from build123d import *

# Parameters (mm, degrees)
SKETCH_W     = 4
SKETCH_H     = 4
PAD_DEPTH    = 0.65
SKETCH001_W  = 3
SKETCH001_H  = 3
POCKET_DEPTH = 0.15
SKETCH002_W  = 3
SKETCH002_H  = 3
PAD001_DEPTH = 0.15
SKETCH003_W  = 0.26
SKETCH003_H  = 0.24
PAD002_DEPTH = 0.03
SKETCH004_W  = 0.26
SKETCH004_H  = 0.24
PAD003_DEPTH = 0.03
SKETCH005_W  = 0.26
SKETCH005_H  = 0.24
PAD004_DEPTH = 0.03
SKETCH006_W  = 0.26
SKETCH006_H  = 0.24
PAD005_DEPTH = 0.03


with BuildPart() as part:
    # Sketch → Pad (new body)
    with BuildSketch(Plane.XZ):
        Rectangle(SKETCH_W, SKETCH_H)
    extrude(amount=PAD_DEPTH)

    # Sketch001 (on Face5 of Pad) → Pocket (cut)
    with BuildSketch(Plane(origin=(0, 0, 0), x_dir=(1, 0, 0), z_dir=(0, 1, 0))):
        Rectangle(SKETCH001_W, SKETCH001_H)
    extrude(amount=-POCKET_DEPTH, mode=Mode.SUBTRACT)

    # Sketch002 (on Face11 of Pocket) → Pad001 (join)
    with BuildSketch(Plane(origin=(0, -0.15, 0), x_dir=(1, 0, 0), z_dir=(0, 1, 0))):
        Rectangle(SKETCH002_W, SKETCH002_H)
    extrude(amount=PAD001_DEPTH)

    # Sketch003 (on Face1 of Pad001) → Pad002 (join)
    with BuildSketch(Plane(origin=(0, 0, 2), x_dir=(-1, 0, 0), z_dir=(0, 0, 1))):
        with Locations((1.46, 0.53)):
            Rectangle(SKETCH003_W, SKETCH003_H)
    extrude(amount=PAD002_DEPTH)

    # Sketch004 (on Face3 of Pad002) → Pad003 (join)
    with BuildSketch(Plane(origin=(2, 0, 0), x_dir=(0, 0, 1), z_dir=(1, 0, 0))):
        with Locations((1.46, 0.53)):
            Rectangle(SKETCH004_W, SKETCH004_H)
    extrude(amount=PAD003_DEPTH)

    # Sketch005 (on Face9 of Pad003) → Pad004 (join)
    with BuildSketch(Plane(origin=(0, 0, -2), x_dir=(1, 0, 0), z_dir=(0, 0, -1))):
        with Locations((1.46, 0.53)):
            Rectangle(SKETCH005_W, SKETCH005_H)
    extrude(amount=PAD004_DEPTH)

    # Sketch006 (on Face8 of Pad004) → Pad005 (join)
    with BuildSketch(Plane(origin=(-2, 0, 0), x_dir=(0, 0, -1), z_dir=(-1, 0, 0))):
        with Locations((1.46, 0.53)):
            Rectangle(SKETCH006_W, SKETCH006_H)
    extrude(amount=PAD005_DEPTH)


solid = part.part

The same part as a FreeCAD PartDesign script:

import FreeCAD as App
import Part
import Sketcher

doc = App.newDocument("Part")
body = doc.addObject("PartDesign::Body", "Body")

sketch1 = doc.addObject("Sketcher::SketchObject", "Sketch")
body.addObject(sketch1)
sketch1.AttachmentSupport = (doc.XZ_Plane, [""])
sketch1.MapMode = "FlatFace"
sketch1.addGeometry([
    Part.LineSegment(App.Vector(-2, 2, 0), App.Vector(-2, -2, 0)),
    Part.LineSegment(App.Vector(-2, -2, 0), App.Vector(2, -2, 0)),
    Part.LineSegment(App.Vector(2, -2, 0), App.Vector(2, 2, 0)),
    Part.LineSegment(App.Vector(2, 2, 0), App.Vector(-2, 2, 0)),
], False)
sketch1.addConstraint([
    Sketcher.Constraint("Coincident", 0, 2, 1, 1),
    Sketcher.Constraint("Coincident", 1, 2, 2, 1),
    Sketcher.Constraint("Coincident", 2, 2, 3, 1),
    Sketcher.Constraint("Coincident", 3, 2, 0, 1),
    Sketcher.Constraint("Vertical", 0),
    Sketcher.Constraint("Horizontal", 1),
    Sketcher.Constraint("Vertical", 2),
    Sketcher.Constraint("Horizontal", 3),
    Sketcher.Constraint("Symmetric", 0, 2, 2, 2, -1, 1),
    Sketcher.Constraint("Equal", 3, 0),
    Sketcher.Constraint("DistanceX", 1, 1, 1, 2, 4.0),
])
pad1 = doc.addObject("PartDesign::Pad", "Pad")
body.addObject(pad1)
pad1.Profile = sketch1
pad1.Length = 0.65

sketch2 = doc.addObject("Sketcher::SketchObject", "Sketch001")
body.addObject(sketch2)
sketch2.AttachmentSupport = (doc.XZ_Plane, [""])
sketch2.MapMode = "FlatFace"
sketch2.addGeometry([
    Part.LineSegment(App.Vector(-1.5, -1.5, 0), App.Vector(-1.5, 1.5, 0)),
    Part.LineSegment(App.Vector(-1.5, 1.5, 0), App.Vector(1.5, 1.5, 0)),
    Part.LineSegment(App.Vector(1.5, 1.5, 0), App.Vector(1.5, -1.5, 0)),
    Part.LineSegment(App.Vector(1.5, -1.5, 0), App.Vector(-1.5, -1.5, 0)),
], False)
sketch2.addConstraint([
    Sketcher.Constraint("Coincident", 0, 2, 1, 1),
    Sketcher.Constraint("Coincident", 1, 2, 2, 1),
    Sketcher.Constraint("Coincident", 2, 2, 3, 1),
    Sketcher.Constraint("Coincident", 3, 2, 0, 1),
    Sketcher.Constraint("Vertical", 0),
    Sketcher.Constraint("Horizontal", 1),
    Sketcher.Constraint("Vertical", 2),
    Sketcher.Constraint("Horizontal", 3),
    Sketcher.Constraint("Symmetric", 0, 2, 2, 2, -1, 1),
    Sketcher.Constraint("Equal", 3, 0),
    Sketcher.Constraint("DistanceX", 1, 1, 1, 2, 3.0),
])
pocket1 = doc.addObject("PartDesign::Pocket", "Pocket")
body.addObject(pocket1)
pocket1.Profile = sketch2
pocket1.Length = 0.15
pocket1.Reversed = True

sketch3 = doc.addObject("Sketcher::SketchObject", "Sketch002")
body.addObject(sketch3)
sketch3.AttachmentSupport = (doc.XZ_Plane, [""])
sketch3.MapMode = "FlatFace"
sketch3.AttachmentOffset = App.Placement(App.Vector(0, 0, 0.15), App.Rotation())
sketch3.addGeometry([
    Part.LineSegment(App.Vector(-1.5, -1.5, 0), App.Vector(-1.5, 1.5, 0)),
    Part.LineSegment(App.Vector(-1.5, 1.5, 0), App.Vector(1.5, 1.5, 0)),
    Part.LineSegment(App.Vector(1.5, 1.5, 0), App.Vector(1.5, -1.5, 0)),
    Part.LineSegment(App.Vector(1.5, -1.5, 0), App.Vector(-1.5, -1.5, 0)),
], False)
sketch3.addConstraint([
    Sketcher.Constraint("Coincident", 0, 2, 1, 1),
    Sketcher.Constraint("Coincident", 1, 2, 2, 1),
    Sketcher.Constraint("Coincident", 2, 2, 3, 1),
    Sketcher.Constraint("Coincident", 3, 2, 0, 1),
    Sketcher.Constraint("Vertical", 0),
    Sketcher.Constraint("Horizontal", 1),
    Sketcher.Constraint("Vertical", 2),
    Sketcher.Constraint("Horizontal", 3),
    Sketcher.Constraint("Symmetric", 0, 2, 2, 2, -1, 1),
    Sketcher.Constraint("Equal", 3, 0),
    Sketcher.Constraint("DistanceX", 1, 1, 1, 2, 3.0),
])
pad2 = doc.addObject("PartDesign::Pad", "Pad001")
body.addObject(pad2)
pad2.Profile = sketch3
pad2.Length = 0.15
pad2.Reversed = True

sketch4 = doc.addObject("Sketcher::SketchObject", "Sketch003")
body.addObject(sketch4)
sketch4.AttachmentSupport = (doc.XY_Plane, [""])
sketch4.MapMode = "FlatFace"
sketch4.AttachmentOffset = App.Placement(App.Vector(0, 0, 2), App.Rotation())
sketch4.addGeometry([
    Part.LineSegment(App.Vector(-1.33, -0.65, 0), App.Vector(-1.33, -0.41, 0)),
    Part.LineSegment(App.Vector(-1.33, -0.41, 0), App.Vector(-1.59, -0.41, 0)),
    Part.LineSegment(App.Vector(-1.59, -0.41, 0), App.Vector(-1.59, -0.65, 0)),
    Part.LineSegment(App.Vector(-1.59, -0.65, 0), App.Vector(-1.33, -0.65, 0)),
], False)
sketch4.addConstraint([
    Sketcher.Constraint("Coincident", 0, 2, 1, 1),
    Sketcher.Constraint("Coincident", 1, 2, 2, 1),
    Sketcher.Constraint("Coincident", 2, 2, 3, 1),
    Sketcher.Constraint("Coincident", 3, 2, 0, 1),
    Sketcher.Constraint("Vertical", 0),
    Sketcher.Constraint("Horizontal", 1),
    Sketcher.Constraint("Vertical", 2),
    Sketcher.Constraint("Horizontal", 3),
    Sketcher.Constraint("DistanceX", 1, 2, 1, 1, 0.26),
    Sketcher.Constraint("DistanceY", 0, 1, 0, 2, 0.24),
    Sketcher.Constraint("DistanceX", 0, 2, -1, 1, 1.33),
    Sketcher.Constraint("DistanceY", 0, 2, -1, 1, 0.41),
])
pad3 = doc.addObject("PartDesign::Pad", "Pad002")
body.addObject(pad3)
pad3.Profile = sketch4
pad3.Length = 0.03

sketch5 = doc.addObject("Sketcher::SketchObject", "Sketch004")
body.addObject(sketch5)
sketch5.AttachmentSupport = (doc.YZ_Plane, [""])
sketch5.MapMode = "FlatFace"
sketch5.AttachmentOffset = App.Placement(App.Vector(0, 0, 2), App.Rotation())
sketch5.addGeometry([
    Part.LineSegment(App.Vector(-0.65, 1.33, 0), App.Vector(-0.41, 1.33, 0)),
    Part.LineSegment(App.Vector(-0.41, 1.33, 0), App.Vector(-0.41, 1.59, 0)),
    Part.LineSegment(App.Vector(-0.41, 1.59, 0), App.Vector(-0.65, 1.59, 0)),
    Part.LineSegment(App.Vector(-0.65, 1.59, 0), App.Vector(-0.65, 1.33, 0)),
], False)
sketch5.addConstraint([
    Sketcher.Constraint("Coincident", 0, 2, 1, 1),
    Sketcher.Constraint("Coincident", 1, 2, 2, 1),
    Sketcher.Constraint("Coincident", 2, 2, 3, 1),
    Sketcher.Constraint("Coincident", 3, 2, 0, 1),
    Sketcher.Constraint("Horizontal", 0),
    Sketcher.Constraint("Vertical", 1),
    Sketcher.Constraint("Horizontal", 2),
    Sketcher.Constraint("Vertical", 3),
    Sketcher.Constraint("DistanceX", 0, 1, 0, 2, 0.24),
    Sketcher.Constraint("DistanceY", 1, 1, 1, 2, 0.26),
    Sketcher.Constraint("DistanceX", 0, 2, -1, 1, 0.41),
    Sketcher.Constraint("DistanceY", -1, 1, 0, 2, 1.33),
])
pad4 = doc.addObject("PartDesign::Pad", "Pad003")
body.addObject(pad4)
pad4.Profile = sketch5
pad4.Length = 0.03

sketch6 = doc.addObject("Sketcher::SketchObject", "Sketch005")
body.addObject(sketch6)
sketch6.AttachmentSupport = (doc.XY_Plane, [""])
sketch6.MapMode = "FlatFace"
sketch6.AttachmentOffset = App.Placement(App.Vector(0, 0, -2), App.Rotation())
sketch6.addGeometry([
    Part.LineSegment(App.Vector(1.33, -0.65, 0), App.Vector(1.33, -0.41, 0)),
    Part.LineSegment(App.Vector(1.33, -0.41, 0), App.Vector(1.59, -0.41, 0)),
    Part.LineSegment(App.Vector(1.59, -0.41, 0), App.Vector(1.59, -0.65, 0)),
    Part.LineSegment(App.Vector(1.59, -0.65, 0), App.Vector(1.33, -0.65, 0)),
], False)
sketch6.addConstraint([
    Sketcher.Constraint("Coincident", 0, 2, 1, 1),
    Sketcher.Constraint("Coincident", 1, 2, 2, 1),
    Sketcher.Constraint("Coincident", 2, 2, 3, 1),
    Sketcher.Constraint("Coincident", 3, 2, 0, 1),
    Sketcher.Constraint("Vertical", 0),
    Sketcher.Constraint("Horizontal", 1),
    Sketcher.Constraint("Vertical", 2),
    Sketcher.Constraint("Horizontal", 3),
    Sketcher.Constraint("DistanceX", 1, 1, 1, 2, 0.26),
    Sketcher.Constraint("DistanceY", 0, 1, 0, 2, 0.24),
    Sketcher.Constraint("DistanceX", -1, 1, 0, 2, 1.33),
    Sketcher.Constraint("DistanceY", 0, 2, -1, 1, 0.41),
])
pad5 = doc.addObject("PartDesign::Pad", "Pad004")
body.addObject(pad5)
pad5.Profile = sketch6
pad5.Length = 0.03
pad5.Reversed = True

sketch7 = doc.addObject("Sketcher::SketchObject", "Sketch006")
body.addObject(sketch7)
sketch7.AttachmentSupport = (doc.YZ_Plane, [""])
sketch7.MapMode = "FlatFace"
sketch7.AttachmentOffset = App.Placement(App.Vector(0, 0, -2), App.Rotation())
sketch7.addGeometry([
    Part.LineSegment(App.Vector(-0.65, -1.33, 0), App.Vector(-0.41, -1.33, 0)),
    Part.LineSegment(App.Vector(-0.41, -1.33, 0), App.Vector(-0.41, -1.59, 0)),
    Part.LineSegment(App.Vector(-0.41, -1.59, 0), App.Vector(-0.65, -1.59, 0)),
    Part.LineSegment(App.Vector(-0.65, -1.59, 0), App.Vector(-0.65, -1.33, 0)),
], False)
sketch7.addConstraint([
    Sketcher.Constraint("Coincident", 0, 2, 1, 1),
    Sketcher.Constraint("Coincident", 1, 2, 2, 1),
    Sketcher.Constraint("Coincident", 2, 2, 3, 1),
    Sketcher.Constraint("Coincident", 3, 2, 0, 1),
    Sketcher.Constraint("Horizontal", 0),
    Sketcher.Constraint("Vertical", 1),
    Sketcher.Constraint("Horizontal", 2),
    Sketcher.Constraint("Vertical", 3),
    Sketcher.Constraint("DistanceX", 0, 1, 0, 2, 0.24),
    Sketcher.Constraint("DistanceY", 1, 2, 1, 1, 0.26),
    Sketcher.Constraint("DistanceX", 0, 2, -1, 1, 0.41),
    Sketcher.Constraint("DistanceY", 0, 2, -1, 1, 1.33),
])
pad6 = doc.addObject("PartDesign::Pad", "Pad005")
body.addObject(pad6)
pad6.Profile = sketch7
pad6.Length = 0.03
pad6.Reversed = True

doc.recompute()
